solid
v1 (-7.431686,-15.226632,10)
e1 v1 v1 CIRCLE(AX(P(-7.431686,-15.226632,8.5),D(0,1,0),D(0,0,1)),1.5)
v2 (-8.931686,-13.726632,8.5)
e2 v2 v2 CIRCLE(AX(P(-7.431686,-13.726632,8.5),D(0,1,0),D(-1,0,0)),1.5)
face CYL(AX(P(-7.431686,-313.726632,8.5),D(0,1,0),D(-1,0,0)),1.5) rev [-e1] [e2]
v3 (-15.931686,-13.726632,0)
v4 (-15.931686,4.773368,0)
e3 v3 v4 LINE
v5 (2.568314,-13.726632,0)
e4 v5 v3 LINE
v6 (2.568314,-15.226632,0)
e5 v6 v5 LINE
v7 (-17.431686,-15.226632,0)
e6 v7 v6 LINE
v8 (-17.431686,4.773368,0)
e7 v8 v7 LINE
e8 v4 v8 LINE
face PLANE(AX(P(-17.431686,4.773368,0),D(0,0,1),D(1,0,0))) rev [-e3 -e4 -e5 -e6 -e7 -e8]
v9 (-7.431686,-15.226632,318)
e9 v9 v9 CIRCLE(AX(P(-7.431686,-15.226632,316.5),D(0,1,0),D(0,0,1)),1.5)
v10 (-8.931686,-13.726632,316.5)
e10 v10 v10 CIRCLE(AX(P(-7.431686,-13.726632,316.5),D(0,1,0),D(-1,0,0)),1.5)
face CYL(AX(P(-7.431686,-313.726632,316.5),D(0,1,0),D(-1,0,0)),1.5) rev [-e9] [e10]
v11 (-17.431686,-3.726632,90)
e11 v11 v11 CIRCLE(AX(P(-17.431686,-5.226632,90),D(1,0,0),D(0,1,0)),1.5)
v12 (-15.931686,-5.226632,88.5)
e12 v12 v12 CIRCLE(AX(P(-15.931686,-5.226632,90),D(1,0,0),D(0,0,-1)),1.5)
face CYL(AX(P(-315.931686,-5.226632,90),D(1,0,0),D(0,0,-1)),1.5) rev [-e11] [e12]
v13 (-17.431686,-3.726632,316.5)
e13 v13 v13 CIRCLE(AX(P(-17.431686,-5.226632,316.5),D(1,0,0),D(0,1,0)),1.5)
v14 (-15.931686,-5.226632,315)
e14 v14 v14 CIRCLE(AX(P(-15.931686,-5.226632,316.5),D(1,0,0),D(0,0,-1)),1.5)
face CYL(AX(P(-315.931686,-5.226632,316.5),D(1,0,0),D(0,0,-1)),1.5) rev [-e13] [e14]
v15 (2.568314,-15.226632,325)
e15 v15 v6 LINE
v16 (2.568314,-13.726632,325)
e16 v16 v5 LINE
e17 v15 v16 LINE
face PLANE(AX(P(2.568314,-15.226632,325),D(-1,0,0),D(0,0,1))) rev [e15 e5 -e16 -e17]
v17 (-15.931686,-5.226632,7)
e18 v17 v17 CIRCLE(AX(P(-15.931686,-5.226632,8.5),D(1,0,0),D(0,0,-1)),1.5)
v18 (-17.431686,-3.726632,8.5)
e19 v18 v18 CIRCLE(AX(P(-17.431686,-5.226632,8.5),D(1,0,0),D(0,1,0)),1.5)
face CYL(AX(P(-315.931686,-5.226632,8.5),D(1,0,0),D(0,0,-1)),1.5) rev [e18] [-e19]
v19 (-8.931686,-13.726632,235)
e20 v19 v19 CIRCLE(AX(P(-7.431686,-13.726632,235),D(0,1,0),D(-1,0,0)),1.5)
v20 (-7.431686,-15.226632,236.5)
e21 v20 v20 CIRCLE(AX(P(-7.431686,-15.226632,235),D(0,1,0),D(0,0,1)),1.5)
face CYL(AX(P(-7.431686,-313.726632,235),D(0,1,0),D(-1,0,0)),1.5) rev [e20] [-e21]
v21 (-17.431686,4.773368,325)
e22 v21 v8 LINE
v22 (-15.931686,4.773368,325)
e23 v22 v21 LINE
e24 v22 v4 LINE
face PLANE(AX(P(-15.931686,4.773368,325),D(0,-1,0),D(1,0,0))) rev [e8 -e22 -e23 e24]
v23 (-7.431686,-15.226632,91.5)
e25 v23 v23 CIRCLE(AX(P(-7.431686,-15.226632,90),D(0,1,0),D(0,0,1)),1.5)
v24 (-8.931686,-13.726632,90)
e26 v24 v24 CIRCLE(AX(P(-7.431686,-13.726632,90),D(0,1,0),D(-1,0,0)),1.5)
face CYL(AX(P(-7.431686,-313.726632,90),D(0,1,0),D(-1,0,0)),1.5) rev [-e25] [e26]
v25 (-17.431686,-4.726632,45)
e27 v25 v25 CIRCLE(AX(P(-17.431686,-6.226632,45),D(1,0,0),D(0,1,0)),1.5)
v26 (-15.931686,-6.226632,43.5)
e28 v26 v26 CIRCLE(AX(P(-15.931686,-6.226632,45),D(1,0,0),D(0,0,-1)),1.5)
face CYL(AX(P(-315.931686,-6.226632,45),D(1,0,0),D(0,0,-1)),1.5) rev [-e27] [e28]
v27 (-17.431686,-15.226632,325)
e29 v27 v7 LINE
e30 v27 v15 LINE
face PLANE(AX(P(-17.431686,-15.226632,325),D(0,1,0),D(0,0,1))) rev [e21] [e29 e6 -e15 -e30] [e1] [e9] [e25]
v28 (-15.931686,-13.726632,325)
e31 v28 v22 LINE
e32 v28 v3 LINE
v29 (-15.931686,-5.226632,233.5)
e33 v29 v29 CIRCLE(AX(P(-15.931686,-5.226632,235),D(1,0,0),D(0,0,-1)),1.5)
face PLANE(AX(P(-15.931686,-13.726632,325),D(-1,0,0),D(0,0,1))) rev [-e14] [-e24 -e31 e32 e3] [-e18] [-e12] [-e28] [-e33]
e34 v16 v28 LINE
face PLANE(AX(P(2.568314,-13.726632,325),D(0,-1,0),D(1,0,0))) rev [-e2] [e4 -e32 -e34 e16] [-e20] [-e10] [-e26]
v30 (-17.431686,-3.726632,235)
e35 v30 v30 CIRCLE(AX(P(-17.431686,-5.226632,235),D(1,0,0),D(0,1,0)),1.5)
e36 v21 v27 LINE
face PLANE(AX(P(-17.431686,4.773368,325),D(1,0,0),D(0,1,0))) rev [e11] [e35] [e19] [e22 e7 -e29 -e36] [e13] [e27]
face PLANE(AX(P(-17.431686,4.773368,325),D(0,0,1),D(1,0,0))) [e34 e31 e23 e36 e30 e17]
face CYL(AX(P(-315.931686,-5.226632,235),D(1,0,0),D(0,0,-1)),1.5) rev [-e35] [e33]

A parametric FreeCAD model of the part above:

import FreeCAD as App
import Part
import Sketcher
Q = App.Units.Quantity


def add_polygon(sketch, points):
    """Adds a closed chain of lines whose ends are joined by coincident constraints."""
    first, n = sketch.GeometryCount, len(points)
    for a, b in zip(points, points[1:] + points[:1]):
        sketch.addGeometry(Part.LineSegment(App.Vector(*a, 0), App.Vector(*b, 0)), False)
    for i in range(n):
        sketch.addConstraint(Sketcher.Constraint("Coincident", first + i, 2, first + (i + 1) % n, 1))

doc = App.newDocument("Part")
body = doc.addObject("PartDesign::Body", "Body")

# Sketch on XY plane
sketch1 = body.newObject("Sketcher::SketchObject", "Sketch")
sketch1.AttachmentSupport = (doc.getObject("XY_Plane"), [""])
sketch1.MapMode = "FlatFace"
add_polygon(sketch1, [(-17.4, 4.8), (-17.4, -15.2), (2.6, -15.2), (2.6, -13.7), (-15.9, -13.7), (-15.9, 4.8)])  # lines 0-5
sketch1.addConstraint(Sketcher.Constraint("Vertical", 0))
sketch1.addConstraint(Sketcher.Constraint("Horizontal", 1))
sketch1.addConstraint(Sketcher.Constraint("Vertical", 2))
sketch1.addConstraint(Sketcher.Constraint("Horizontal", 3))
sketch1.addConstraint(Sketcher.Constraint("Vertical", 4))
sketch1.addConstraint(Sketcher.Constraint("Horizontal", 5))
sketch1.addConstraint(Sketcher.Constraint("Equal", 1, 0))
sketch1.addConstraint(Sketcher.Constraint("Equal", 5, 2))
sketch1.addConstraint(Sketcher.Constraint("DistanceX", 1, 1, 1, 2, Q("20 mm")))
sketch1.addConstraint(Sketcher.Constraint("DistanceX", 3, 2, 3, 1, Q("18.5 mm")))
sketch1.addConstraint(Sketcher.Constraint("DistanceY", 0, 2, -1, 1, Q("15.226632 mm")))
sketch1.addConstraint(Sketcher.Constraint("DistanceX", 0, 2, -1, 1, Q("17.431686 mm")))
pad1 = body.newObject("PartDesign::Pad", "Pad")
pad1.Profile = sketch1
pad1.Length = 325

# Sketch on XZ plane
sketch2 = body.newObject("Sketcher::SketchObject", "Sketch001")
sketch2.AttachmentSupport = (doc.getObject("XZ_Plane"), [""])
sketch2.MapMode = "FlatFace"
sketch2.AttachmentOffset = App.Placement(App.Vector(0, 0, 13.726632), App.Rotation())
sketch2.addGeometry(Part.Circle(App.Vector(-7.4, 8.5, 0), App.Vector(0, 0, 1), 1.5), False)
sketch2.addGeometry(Part.Circle(App.Vector(-7.4, 316.5, 0), App.Vector(0, 0, 1), 1.5), False)
sketch2.addGeometry(Part.Circle(App.Vector(-7.4, 235, 0), App.Vector(0, 0, 1), 1.5), False)
sketch2.addGeometry(Part.Circle(App.Vector(-7.4, 90, 0), App.Vector(0, 0, 1), 1.5), False)
sketch2.addConstraint(Sketcher.Constraint("Equal", 0, 1))
sketch2.addConstraint(Sketcher.Constraint("Equal", 1, 2))
sketch2.addConstraint(Sketcher.Constraint("Equal", 2, 3))
sketch2.addConstraint(Sketcher.Constraint("Vertical", 0, 3, 1, 3))
sketch2.addConstraint(Sketcher.Constraint("Vertical", 1, 3, 2, 3))
sketch2.addConstraint(Sketcher.Constraint("Vertical", 2, 3, 3, 3))
sketch2.addConstraint(Sketcher.Constraint("Diameter", 0, Q("3 mm")))
sketch2.addConstraint(Sketcher.Constraint("DistanceY", -1, 1, 2, 3, Q("235 mm")))
sketch2.addConstraint(Sketcher.Constraint("DistanceY", -1, 1, 3, 3, Q("90 mm")))
sketch2.addConstraint(Sketcher.Constraint("DistanceY", 0, 3, 1, 3, Q("308 mm")))
sketch2.addConstraint(Sketcher.Constraint("DistanceY", -1, 1, 0, 3, Q("8.5 mm")))
sketch2.addConstraint(Sketcher.Constraint("DistanceX", 0, 3, -1, 1, Q("7.431686 mm")))
pocket1 = body.newObject("PartDesign::Pocket", "Pocket")
pocket1.Profile = sketch2
pocket1.Length = 300
pocket1.Reversed = True

# Sketch on YZ plane
sketch3 = body.newObject("Sketcher::SketchObject", "Sketch002")
sketch3.AttachmentSupport = (doc.getObject("YZ_Plane"), [""])
sketch3.MapMode = "FlatFace"
sketch3.AttachmentOffset = App.Placement(App.Vector(0, 0, -15.931686), App.Rotation())
sketch3.addGeometry(Part.Circle(App.Vector(-5.2, 316.5, 0), App.Vector(0, 0, 1), 1.5), False)
sketch3.addGeometry(Part.Circle(App.Vector(-5.2, 8.5, 0), App.Vector(0, 0, 1), 1.5), False)
sketch3.addGeometry(Part.Circle(App.Vector(-5.2, 235, 0), App.Vector(0, 0, 1), 1.5), False)
sketch3.addGeometry(Part.Circle(App.Vector(-5.2, 90, 0), App.Vector(0, 0, 1), 1.5), False)
sketch3.addGeometry(Part.Circle(App.Vector(-6.2, 45, 0), App.Vector(0, 0, 1), 1.5), False)
sketch3.addConstraint(Sketcher.Constraint("Equal", 0, 1))
sketch3.addConstraint(Sketcher.Constraint("Equal", 1, 2))
sketch3.addConstraint(Sketcher.Constraint("Equal", 2, 3))
sketch3.addConstraint(Sketcher.Constraint("Equal", 3, 4))
sketch3.addConstraint(Sketcher.Constraint("Vertical", 0, 3, 1, 3))
sketch3.addConstraint(Sketcher.Constraint("Vertical", 1, 3, 2, 3))
sketch3.addConstraint(Sketcher.Constraint("Vertical", 2, 3, 3, 3))
sketch3.addConstraint(Sketcher.Constraint("Diameter", 0, Q("3 mm")))
sketch3.addConstraint(Sketcher.Constraint("DistanceY", -1, 1, 2, 3, Q("235 mm")))
sketch3.addConstraint(Sketcher.Constraint("DistanceY", -1, 1, 3, 3, Q("90 mm")))
sketch3.addConstraint(Sketcher.Constraint("DistanceY", -1, 1, 4, 3, Q("45 mm")))
sketch3.addConstraint(Sketcher.Constraint("DistanceY", 1, 3, 0, 3, Q("308 mm")))
sketch3.addConstraint(Sketcher.Constraint("DistanceX", 4, 3, 1, 3, Q("1 mm")))
sketch3.addConstraint(Sketcher.Constraint("DistanceY", -1, 1, 0, 3, Q("316.5 mm")))
sketch3.addConstraint(Sketcher.Constraint("DistanceX", 0, 3, -1, 1, Q("5.226632 mm")))
pocket2 = body.newObject("PartDesign::Pocket", "Pocket001")
pocket2.Profile = sketch3
pocket2.Length = 300

doc.recompute()
